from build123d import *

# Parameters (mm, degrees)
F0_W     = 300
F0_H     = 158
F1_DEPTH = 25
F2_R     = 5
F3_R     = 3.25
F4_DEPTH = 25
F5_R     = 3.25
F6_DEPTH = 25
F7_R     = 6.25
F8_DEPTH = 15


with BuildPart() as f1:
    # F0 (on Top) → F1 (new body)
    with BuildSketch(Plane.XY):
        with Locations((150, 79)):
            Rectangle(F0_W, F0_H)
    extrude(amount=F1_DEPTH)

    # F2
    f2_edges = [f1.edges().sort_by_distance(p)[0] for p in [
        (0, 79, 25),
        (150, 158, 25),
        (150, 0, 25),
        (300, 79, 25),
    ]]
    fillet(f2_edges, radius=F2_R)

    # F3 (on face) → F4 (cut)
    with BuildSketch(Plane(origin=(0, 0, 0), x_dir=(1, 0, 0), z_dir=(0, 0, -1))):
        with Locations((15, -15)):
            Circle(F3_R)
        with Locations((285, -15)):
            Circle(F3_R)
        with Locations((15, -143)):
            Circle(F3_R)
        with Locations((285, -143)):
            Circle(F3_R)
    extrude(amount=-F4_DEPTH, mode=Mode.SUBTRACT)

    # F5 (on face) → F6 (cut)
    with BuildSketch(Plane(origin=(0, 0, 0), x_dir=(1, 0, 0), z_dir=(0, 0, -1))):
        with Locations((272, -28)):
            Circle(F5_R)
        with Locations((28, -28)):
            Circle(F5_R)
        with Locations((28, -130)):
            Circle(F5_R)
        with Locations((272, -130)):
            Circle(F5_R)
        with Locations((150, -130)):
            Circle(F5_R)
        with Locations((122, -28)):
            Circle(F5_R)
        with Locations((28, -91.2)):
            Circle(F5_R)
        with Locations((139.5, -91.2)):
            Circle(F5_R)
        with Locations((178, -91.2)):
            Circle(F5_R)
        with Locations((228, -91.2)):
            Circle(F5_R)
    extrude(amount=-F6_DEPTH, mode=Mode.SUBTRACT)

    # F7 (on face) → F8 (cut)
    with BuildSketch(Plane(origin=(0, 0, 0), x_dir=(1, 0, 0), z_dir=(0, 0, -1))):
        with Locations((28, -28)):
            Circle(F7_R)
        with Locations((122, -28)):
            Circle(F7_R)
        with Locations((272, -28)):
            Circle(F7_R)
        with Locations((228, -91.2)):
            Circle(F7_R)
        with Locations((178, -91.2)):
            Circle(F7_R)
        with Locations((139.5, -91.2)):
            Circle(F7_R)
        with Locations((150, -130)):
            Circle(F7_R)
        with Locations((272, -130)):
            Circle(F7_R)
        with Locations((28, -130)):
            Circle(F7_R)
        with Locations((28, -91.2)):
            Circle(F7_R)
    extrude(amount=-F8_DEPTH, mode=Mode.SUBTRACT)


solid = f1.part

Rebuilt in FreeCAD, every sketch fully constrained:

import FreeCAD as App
import Part
import Sketcher

V = App.Vector
Q = App.Units.Quantity


def edges_at(feature, points):
    """Names of the edges that pass closest to the given points."""
    edges = feature.Shape.Edges
    near = lambda p: min(range(len(edges)), key=lambda i: edges[i].distToShape(Part.Vertex(*p))[0])
    return sorted({f"Edge{near(p) + 1}" for p in points})


def add_polygon(sketch, points):
    """Adds a closed chain of lines whose ends are joined by coincident constraints."""
    first, n = sketch.GeometryCount, len(points)
    for a, b in zip(points, points[1:] + points[:1]):
        sketch.addGeometry(Part.LineSegment(App.Vector(*a, 0), App.Vector(*b, 0)), False)
    for i in range(n):
        sketch.addConstraint(Sketcher.Constraint("Coincident", first + i, 2, first + (i + 1) % n, 1))

doc = App.newDocument("Part")
body = doc.addObject("PartDesign::Body", "Body")

sketch1 = body.newObject("Sketcher::SketchObject", "Sketch")
sketch1.AttachmentSupport = (doc.getObject("XY_Plane"), [""])
sketch1.MapMode = "FlatFace"
add_polygon(sketch1, [(0, 158), (0, 0), (300, 0), (300, 158)])
sketch1.addConstraint([
    Sketcher.Constraint("Vertical", 0),
    Sketcher.Constraint("Horizontal", 1),
    Sketcher.Constraint("Vertical", 2),
    Sketcher.Constraint("Horizontal", 3),
    Sketcher.Constraint("Coincident", 0, 2, -1, 1),
    Sketcher.Constraint("DistanceX", 1, 1, 1, 2, Q("300 mm")),
    Sketcher.Constraint("DistanceY", 0, 2, 0, 1, Q("158 mm")),
])
pad1 = body.newObject("PartDesign::Pad", "Pad")
pad1.Profile = sketch1
pad1.Length = 25
doc.recompute()

fillet = body.newObject("PartDesign::Fillet", "Fillet")
fillet.Base = (pad1, edges_at(pad1, [
    (0, 79, 25),
    (150, 158, 25),
    (150, 0, 25),
    (300, 79, 25),
]))
fillet.Radius = 5

sketch2 = body.newObject("Sketcher::SketchObject", "Sketch001")
sketch2.AttachmentSupport = (doc.getObject("XY_Plane"), [""])
sketch2.MapMode = "FlatFace"
sketch2.addGeometry([
    Part.Circle(V(15, 15, 0), V(0, 0, 1), 3.2),
    Part.Circle(V(285, 15, 0), V(0, 0, 1), 3.2),
    Part.Circle(V(15, 143, 0), V(0, 0, 1), 3.2),
    Part.Circle(V(285, 143, 0), V(0, 0, 1), 3.2),
], False)
sketch2.addConstraint([
    Sketcher.Constraint("Equal", 0, 1),
    Sketcher.Constraint("Equal", 1, 2),
    Sketcher.Constraint("Equal", 2, 3),
    Sketcher.Constraint("Horizontal", 0, 3, 1, 3),
    Sketcher.Constraint("Horizontal", 2, 3, 3, 3),
    Sketcher.Constraint("Vertical", 0, 3, 2, 3),
    Sketcher.Constraint("Vertical", 1, 3, 3, 3),
    Sketcher.Constraint("Diameter", 0, Q("6.5 mm")),
    Sketcher.Constraint("DistanceX", -1, 1, 0, 3, Q("15 mm")),
    Sketcher.Constraint("DistanceY", -1, 1, 0, 3, Q("15 mm")),
    Sketcher.Constraint("DistanceX", -1, 1, 1, 3, Q("285 mm")),
    Sketcher.Constraint("DistanceY", -1, 1, 2, 3, Q("143 mm")),
])
pocket1 = body.newObject("PartDesign::Pocket", "Pocket")
pocket1.Profile = sketch2
pocket1.Length = 25
pocket1.Reversed = True

sketch3 = body.newObject("Sketcher::SketchObject", "Sketch002")
sketch3.AttachmentSupport = (doc.getObject("XY_Plane"), [""])
sketch3.MapMode = "FlatFace"
sketch3.addGeometry([
    Part.Circle(V(272, 28, 0), V(0, 0, 1), 3.2),
    Part.Circle(V(28, 28, 0), V(0, 0, 1), 3.2),
    Part.Circle(V(28, 130, 0), V(0, 0, 1), 3.2),
    Part.Circle(V(272, 130, 0), V(0, 0, 1), 3.2),
    Part.Circle(V(150, 130, 0), V(0, 0, 1), 3.2),
    Part.Circle(V(122, 28, 0), V(0, 0, 1), 3.2),
    Part.Circle(V(28, 91.2, 0), V(0, 0, 1), 3.2),
    Part.Circle(V(139.5, 91.2, 0), V(0, 0, 1), 3.2),
    Part.Circle(V(178, 91.2, 0), V(0, 0, 1), 3.2),
    Part.Circle(V(228, 91.2, 0), V(0, 0, 1), 3.2),
], False)
sketch3.addConstraint([
    Sketcher.Constraint("Equal", 0, 1),
    Sketcher.Constraint("Equal", 1, 2),
    Sketcher.Constraint("Equal", 2, 3),
    Sketcher.Constraint("Equal", 3, 4),
    Sketcher.Constraint("Equal", 4, 5),
    Sketcher.Constraint("Equal", 5, 6),
    Sketcher.Constraint("Equal", 6, 7),
    Sketcher.Constraint("Equal", 7, 8),
    Sketcher.Constraint("Equal", 8, 9),
    Sketcher.Constraint("Horizontal", 0, 3, 1, 3),
    Sketcher.Constraint("Horizontal", 2, 3, 3, 3),
    Sketcher.Constraint("Horizontal", 3, 3, 4, 3),
    Sketcher.Constraint("Horizontal", 1, 3, 5, 3),
    Sketcher.Constraint("Horizontal", 6, 3, 7, 3),
    Sketcher.Constraint("Horizontal", 7, 3, 8, 3),
    Sketcher.Constraint("Horizontal", 8, 3, 9, 3),
    Sketcher.Constraint("Vertical", 1, 3, 2, 3),
    Sketcher.Constraint("Vertical", 0, 3, 3, 3),
    Sketcher.Constraint("Vertical", 2, 3, 6, 3),
    Sketcher.Constraint("Diameter", 0, Q("6.5 mm")),
    Sketcher.Constraint("DistanceX", -1, 1, 0, 3, Q("272 mm")),
    Sketcher.Constraint("DistanceY", -1, 1, 0, 3, Q("28 mm")),
    Sketcher.Constraint("DistanceX", -1, 1, 1, 3, Q("28 mm")),
    Sketcher.Constraint("DistanceY", -1, 1, 2, 3, Q("130 mm")),
    Sketcher.Constraint("DistanceX", -1, 1, 4, 3, Q("150 mm")),
    Sketcher.Constraint("DistanceX", -1, 1, 5, 3, Q("122 mm")),
    Sketcher.Constraint("DistanceX", -1, 1, 8, 3, Q("178 mm")),
    Sketcher.Constraint("DistanceX", -1, 1, 9, 3, Q("228 mm")),
    Sketcher.Constraint("DistanceY", -1, 1, 6, 3, Q("91.2 mm")),
    Sketcher.Constraint("DistanceX", -1, 1, 7, 3, Q("139.5 mm")),
])
pocket2 = body.newObject("PartDesign::Pocket", "Pocket001")
pocket2.Profile = sketch3
pocket2.Length = 25
pocket2.Reversed = True

sketch4 = body.newObject("Sketcher::SketchObject", "Sketch003")
sketch4.AttachmentSupport = (doc.getObject("XY_Plane"), [""])
sketch4.MapMode = "FlatFace"
sketch4.addGeometry([
    Part.Circle(V(28, 28, 0), V(0, 0, 1), 6),
    Part.Circle(V(122, 28, 0), V(0, 0, 1), 6),
    Part.Circle(V(272, 28, 0), V(0, 0, 1), 6),
    Part.Circle(V(228, 91, 0), V(0, 0, 1), 6),
    Part.Circle(V(178, 91, 0), V(0, 0, 1), 6),
    Part.Circle(V(140, 91, 0), V(0, 0, 1), 6),
    Part.Circle(V(150, 130, 0), V(0, 0, 1), 6),
    Part.Circle(V(272, 130, 0), V(0, 0, 1), 6),
    Part.Circle(V(28, 130, 0), V(0, 0, 1), 6),
    Part.Circle(V(28, 91, 0), V(0, 0, 1), 6),
], False)
sketch4.addConstraint([
    Sketcher.Constraint("Equal", 0, 1),
    Sketcher.Constraint("Equal", 1, 2),
    Sketcher.Constraint("Equal", 2, 3),
    Sketcher.Constraint("Equal", 3, 4),
    Sketcher.Constraint("Equal", 4, 5),
    Sketcher.Constraint("Equal", 5, 6),
    Sketcher.Constraint("Equal", 6, 7),
    Sketcher.Constraint("Equal", 7, 8),
    Sketcher.Constraint("Equal", 8, 9),
    Sketcher.Constraint("Horizontal", 0, 3, 1, 3),
    Sketcher.Constraint("Horizontal", 1, 3, 2, 3),
    Sketcher.Constraint("Horizontal", 3, 3, 4, 3),
    Sketcher.Constraint("Horizontal", 4, 3, 5, 3),
    Sketcher.Constraint("Horizontal", 6, 3, 7, 3),
    Sketcher.Constraint("Horizontal", 7, 3, 8, 3),
    Sketcher.Constraint("Horizontal", 5, 3, 9, 3),
    Sketcher.Constraint("Vertical", 2, 3, 7, 3),
    Sketcher.Constraint("Vertical", 0, 3, 8, 3),
    Sketcher.Constraint("Vertical", 8, 3, 9, 3),
    Sketcher.Constraint("Diameter", 0, Q("12.5 mm")),
    Sketcher.Constraint("DistanceX", -1, 1, 0, 3, Q("28 mm")),
    Sketcher.Constraint("DistanceY", -1, 1, 0, 3, Q("28 mm")),
    Sketcher.Constraint("DistanceX", -1, 1, 1, 3, Q("122 mm")),
    Sketcher.Constraint("DistanceX", -1, 1, 2, 3, Q("272 mm")),
    Sketcher.Constraint("DistanceX", -1, 1, 3, 3, Q("228 mm")),
    Sketcher.Constraint("DistanceX", -1, 1, 4, 3, Q("178 mm")),
    Sketcher.Constraint("DistanceX", -1, 1, 6, 3, Q("150 mm")),
    Sketcher.Constraint("DistanceY", -1, 1, 6, 3, Q("130 mm")),
    Sketcher.Constraint("DistanceY", -1, 1, 3, 3, Q("91.2 mm")),
    Sketcher.Constraint("DistanceX", -1, 1, 5, 3, Q("139.5 mm")),
])
pocket3 = body.newObject("PartDesign::Pocket", "Pocket002")
pocket3.Profile = sketch4
pocket3.Length = 15
pocket3.Reversed = True

doc.recompute()
